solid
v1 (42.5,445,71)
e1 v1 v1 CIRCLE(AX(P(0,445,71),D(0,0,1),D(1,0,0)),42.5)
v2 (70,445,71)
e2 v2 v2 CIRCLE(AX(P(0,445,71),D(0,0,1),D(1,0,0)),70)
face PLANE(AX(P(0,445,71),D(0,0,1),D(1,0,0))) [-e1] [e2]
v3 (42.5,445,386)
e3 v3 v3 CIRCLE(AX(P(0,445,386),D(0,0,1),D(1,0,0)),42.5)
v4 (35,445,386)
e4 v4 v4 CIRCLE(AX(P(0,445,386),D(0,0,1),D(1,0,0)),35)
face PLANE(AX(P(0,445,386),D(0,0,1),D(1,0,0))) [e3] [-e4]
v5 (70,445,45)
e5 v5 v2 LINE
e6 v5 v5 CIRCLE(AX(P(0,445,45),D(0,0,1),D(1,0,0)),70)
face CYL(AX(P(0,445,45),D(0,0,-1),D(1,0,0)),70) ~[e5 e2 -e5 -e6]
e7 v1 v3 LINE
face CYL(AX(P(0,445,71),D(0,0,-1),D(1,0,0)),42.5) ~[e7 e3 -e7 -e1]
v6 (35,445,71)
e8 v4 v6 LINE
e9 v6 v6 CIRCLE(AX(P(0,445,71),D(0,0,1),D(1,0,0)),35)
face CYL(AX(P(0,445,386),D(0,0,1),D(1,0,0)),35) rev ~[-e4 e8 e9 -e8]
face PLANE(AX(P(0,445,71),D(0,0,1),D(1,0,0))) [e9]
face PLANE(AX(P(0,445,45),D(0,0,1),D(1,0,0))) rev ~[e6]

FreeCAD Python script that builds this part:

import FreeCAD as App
import Part
import Sketcher
Q = App.Units.Quantity

doc = App.newDocument("Part")
body = doc.addObject("PartDesign::Body", "Body")

# Sketch on XY plane
sketch1 = doc.addObject("Sketcher::SketchObject", "Sketch")
body.addObject(sketch1)
sketch1.AttachmentSupport = (doc.XY_Plane, [""])
sketch1.MapMode = "FlatFace"
sketch1.addGeometry(Part.Circle(App.Vector(0, 0, 0), App.Vector(0, 0, 1), 70), False)
sketch1.addConstraint(Sketcher.Constraint("Coincident", 0, 3, -1, 1))
sketch1.addConstraint(Sketcher.Constraint("Diameter", 0, Q("140 mm")))
pad1 = doc.addObject("PartDesign::Pad", "Pad")
body.addObject(pad1)
pad1.Profile = sketch1
pad1.Length = 26

# Sketch on XY plane
sketch2 = doc.addObject("Sketcher::SketchObject", "Sketch001")
body.addObject(sketch2)
sketch2.AttachmentSupport = (doc.XY_Plane, [""])
sketch2.MapMode = "FlatFace"
sketch2.AttachmentOffset = App.Placement(App.Vector(0, 0, 26), App.Rotation())
sketch2.addGeometry(Part.Circle(App.Vector(0, 0, 0), App.Vector(0, 0, 1), 42), False)
sketch2.addConstraint(Sketcher.Constraint("Coincident", 0, 3, -1, 1))
sketch2.addConstraint(Sketcher.Constraint("Diameter", 0, Q("85 mm")))
pad2 = doc.addObject("PartDesign::Pad", "Pad001")
body.addObject(pad2)
pad2.Profile = sketch2
pad2.Length = 315

# Sketch on XY plane
sketch3 = doc.addObject("Sketcher::SketchObject", "Sketch002")
body.addObject(sketch3)
sketch3.AttachmentSupport = (doc.XY_Plane, [""])
sketch3.MapMode = "FlatFace"
sketch3.AttachmentOffset = App.Placement(App.Vector(0, 0, 341), App.Rotation())
sketch3.addGeometry(Part.Circle(App.Vector(0, 0, 0), App.Vector(0, 0, 1), 35), False)
sketch3.addConstraint(Sketcher.Constraint("Coincident", 0, 3, -1, 1))
sketch3.addConstraint(Sketcher.Constraint("Diameter", 0, Q("70 mm")))
pocket1 = doc.addObject("PartDesign::Pocket", "Pocket")
body.addObject(pocket1)
pocket1.Profile = sketch3
pocket1.Length = 315
body2 = doc.addObject("PartDesign::Body", "Body001")
doc.recompute()

body.Placement = App.Placement(App.Vector(0, 445, 45), App.Rotation(App.Vector(0, 0, 1), 0))
boolean = doc.addObject("PartDesign::Boolean", "Boolean")
body2.addObject(boolean)
boolean.Type = "Fuse"
boolean.addObjects([body])

doc.recompute()
